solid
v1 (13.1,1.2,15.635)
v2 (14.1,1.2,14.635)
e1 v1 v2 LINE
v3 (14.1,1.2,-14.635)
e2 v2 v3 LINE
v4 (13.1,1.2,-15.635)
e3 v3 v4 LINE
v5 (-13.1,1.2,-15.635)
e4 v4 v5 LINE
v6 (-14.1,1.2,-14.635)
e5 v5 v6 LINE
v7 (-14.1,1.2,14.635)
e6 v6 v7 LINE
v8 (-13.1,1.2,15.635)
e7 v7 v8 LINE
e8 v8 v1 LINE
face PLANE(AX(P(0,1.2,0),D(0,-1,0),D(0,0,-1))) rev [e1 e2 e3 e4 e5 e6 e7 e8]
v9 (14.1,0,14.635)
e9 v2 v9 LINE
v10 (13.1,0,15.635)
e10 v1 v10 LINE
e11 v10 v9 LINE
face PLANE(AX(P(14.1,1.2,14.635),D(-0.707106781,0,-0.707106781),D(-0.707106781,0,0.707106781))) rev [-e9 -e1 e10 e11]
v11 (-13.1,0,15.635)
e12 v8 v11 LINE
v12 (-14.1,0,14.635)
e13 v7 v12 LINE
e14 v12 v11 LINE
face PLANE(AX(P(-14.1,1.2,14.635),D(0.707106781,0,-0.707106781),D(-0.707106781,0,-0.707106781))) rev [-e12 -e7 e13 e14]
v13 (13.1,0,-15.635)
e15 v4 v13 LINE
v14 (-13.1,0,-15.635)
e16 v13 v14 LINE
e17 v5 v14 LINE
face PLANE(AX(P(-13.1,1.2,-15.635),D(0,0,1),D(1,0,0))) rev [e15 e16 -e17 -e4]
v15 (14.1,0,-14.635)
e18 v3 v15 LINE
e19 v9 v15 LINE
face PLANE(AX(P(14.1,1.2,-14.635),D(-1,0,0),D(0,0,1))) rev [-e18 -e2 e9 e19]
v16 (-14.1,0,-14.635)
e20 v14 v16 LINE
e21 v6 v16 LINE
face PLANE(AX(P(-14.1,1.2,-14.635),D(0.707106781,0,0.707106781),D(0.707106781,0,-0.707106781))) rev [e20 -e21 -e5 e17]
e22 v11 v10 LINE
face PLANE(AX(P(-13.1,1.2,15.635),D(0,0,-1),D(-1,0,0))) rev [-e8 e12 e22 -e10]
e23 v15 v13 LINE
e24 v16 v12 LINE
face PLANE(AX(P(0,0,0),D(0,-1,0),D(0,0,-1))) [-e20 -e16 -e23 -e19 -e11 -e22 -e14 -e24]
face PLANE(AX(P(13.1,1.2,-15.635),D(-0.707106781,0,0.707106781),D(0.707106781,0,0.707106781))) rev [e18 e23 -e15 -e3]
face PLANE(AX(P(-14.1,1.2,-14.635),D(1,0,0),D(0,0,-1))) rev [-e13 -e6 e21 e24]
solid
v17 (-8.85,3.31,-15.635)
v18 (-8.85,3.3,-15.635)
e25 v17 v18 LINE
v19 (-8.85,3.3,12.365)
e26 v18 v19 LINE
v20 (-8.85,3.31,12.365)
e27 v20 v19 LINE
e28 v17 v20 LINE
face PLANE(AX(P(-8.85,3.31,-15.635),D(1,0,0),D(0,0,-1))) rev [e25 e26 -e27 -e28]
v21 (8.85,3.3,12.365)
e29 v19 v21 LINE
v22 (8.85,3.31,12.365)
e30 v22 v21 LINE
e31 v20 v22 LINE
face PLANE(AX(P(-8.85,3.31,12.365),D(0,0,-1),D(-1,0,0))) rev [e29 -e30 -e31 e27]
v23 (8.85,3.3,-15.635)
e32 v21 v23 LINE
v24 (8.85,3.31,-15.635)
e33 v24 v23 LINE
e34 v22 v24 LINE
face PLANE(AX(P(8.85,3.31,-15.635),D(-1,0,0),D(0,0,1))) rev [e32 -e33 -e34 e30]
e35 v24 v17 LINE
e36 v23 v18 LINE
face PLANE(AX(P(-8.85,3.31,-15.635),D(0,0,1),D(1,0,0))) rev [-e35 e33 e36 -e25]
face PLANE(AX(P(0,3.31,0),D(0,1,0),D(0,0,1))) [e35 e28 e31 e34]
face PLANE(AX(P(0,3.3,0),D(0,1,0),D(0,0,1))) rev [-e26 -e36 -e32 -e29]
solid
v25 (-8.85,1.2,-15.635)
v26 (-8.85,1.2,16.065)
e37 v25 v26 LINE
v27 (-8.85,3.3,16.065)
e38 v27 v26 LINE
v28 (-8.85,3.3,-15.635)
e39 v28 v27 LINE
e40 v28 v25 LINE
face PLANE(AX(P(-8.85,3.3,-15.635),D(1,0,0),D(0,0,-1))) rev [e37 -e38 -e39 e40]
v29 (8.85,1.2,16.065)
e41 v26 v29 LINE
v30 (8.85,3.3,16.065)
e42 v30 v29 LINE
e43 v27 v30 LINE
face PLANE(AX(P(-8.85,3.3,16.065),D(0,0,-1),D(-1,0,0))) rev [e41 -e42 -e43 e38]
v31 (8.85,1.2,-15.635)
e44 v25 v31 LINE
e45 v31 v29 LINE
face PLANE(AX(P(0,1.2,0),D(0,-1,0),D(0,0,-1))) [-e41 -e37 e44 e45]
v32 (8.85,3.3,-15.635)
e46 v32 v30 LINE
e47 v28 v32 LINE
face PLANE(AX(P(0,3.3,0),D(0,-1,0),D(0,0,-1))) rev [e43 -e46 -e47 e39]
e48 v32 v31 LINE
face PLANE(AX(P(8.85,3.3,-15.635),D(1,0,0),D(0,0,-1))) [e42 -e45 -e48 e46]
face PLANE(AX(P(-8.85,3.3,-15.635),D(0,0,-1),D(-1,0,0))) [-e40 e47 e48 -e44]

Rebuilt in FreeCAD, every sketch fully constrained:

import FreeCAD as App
import Part
import Sketcher

V = App.Vector


def add_polygon(sketch, points):
    """Adds a closed chain of lines whose ends are joined by coincident constraints."""
    first, n = sketch.GeometryCount, len(points)
    for a, b in zip(points, points[1:] + points[:1]):
        sketch.addGeometry(Part.LineSegment(App.Vector(*a, 0), App.Vector(*b, 0)), False)
    for i in range(n):
        sketch.addConstraint(Sketcher.Constraint("Coincident", first + i, 2, first + (i + 1) % n, 1))

doc = App.newDocument("Part")
params = doc.addObject("Spreadsheet::Sheet", "Params")
for row, (alias, value) in enumerate([
    ("sketch1_width", "26.2 mm"),
    ("sketch1_height", "29.27 mm"),
    ("pad1_length", "1.2 mm"),
    ("sketch2_width", "17.7 mm"),
    ("sketch2_height", "31.7 mm"),
    ("pad2_length", "2.1 mm"),
    ("sketch3_height", "28 mm"),
    ("sketch3_width", "17.7 mm"),
    ("pad3_length", "0.01 mm"),
], start=1):
    params.set(f"A{row}", alias)
    params.set(f"B{row}", "=" + value)
    params.setAlias(f"B{row}", alias)

body = doc.addObject("PartDesign::Body", "Body")

# Sketch on XZ plane
sketch1 = body.newObject("Sketcher::SketchObject", "Sketch")
sketch1.AttachmentSupport = (doc.getObject("XZ_Plane"), [""])
sketch1.MapMode = "FlatFace"
add_polygon(sketch1, [(-13.1, -15.6), (-14.1, -14.6), (-14.1, 14.6), (-13.1, 15.6), (13.1, 15.6), (14.1, 14.6), (14.1, -14.6), (13.1, -15.6)])  # lines 0-7
sketch1.addConstraint([
    Sketcher.Constraint("Vertical", 1),
    Sketcher.Constraint("Horizontal", 3),
    Sketcher.Constraint("Vertical", 5),
    Sketcher.Constraint("Horizontal", 7),
    Sketcher.Constraint("Symmetric", 0, 2, 4, 2, -1, 1),
    Sketcher.Constraint("Symmetric", 2, 2, 6, 2, -1, 1),
    Sketcher.Constraint("Perpendicular", 0, 2),
    Sketcher.Constraint("Perpendicular", 2, 4),
    Sketcher.Constraint("Perpendicular", 4, 6),
    Sketcher.Constraint("Horizontal", 1, 2, 4, 2),
    Sketcher.Constraint("Vertical", 3, 2, 6, 2),
    Sketcher.Constraint("DistanceX", 3, 1, 3, 2, 26.2),
    Sketcher.Constraint("DistanceX", 1, 2, 2, 2, 1.0),
    Sketcher.Constraint("DistanceY", 1, 1, 1, 2, 29.27),
])
sketch1.setExpression("Constraints[19]", "Params.sketch1_width")
sketch1.setExpression("Constraints[21]", "Params.sketch1_height")
pad1 = body.newObject("PartDesign::Pad", "Pad")
pad1.Profile = sketch1
pad1.setExpression("Length", "Params.pad1_length")
pad1.Reversed = True
body2 = doc.addObject("PartDesign::Body", "Body001")

# Sketch on XZ plane
sketch2 = body2.newObject("Sketcher::SketchObject", "Sketch001")
sketch2.AttachmentSupport = (doc.getObject("XZ_Plane001"), [""])
sketch2.MapMode = "FlatFace"
sketch2.AttachmentOffset = App.Placement(V(0, 0, -1.2), App.Rotation())
add_polygon(sketch2, [(-9, -16), (-9, 16), (9, 16), (9, -16)])  # lines 0-3
sketch2.addConstraint([
    Sketcher.Constraint("Vertical", 0),
    Sketcher.Constraint("Horizontal", 1),
    Sketcher.Constraint("Vertical", 2),
    Sketcher.Constraint("Horizontal", 3),
    Sketcher.Constraint("DistanceX", 1, 1, 1, 2, 17.7),
    Sketcher.Constraint("DistanceY", 0, 1, 0, 2, 31.7),
    Sketcher.Constraint("DistanceX", 0, 2, -1, 1, 8.85),
    Sketcher.Constraint("DistanceY", -1, 1, 0, 2, 16.065),
])
sketch2.setExpression("Constraints[8]", "Params.sketch2_width")
sketch2.setExpression("Constraints[9]", "Params.sketch2_height")
pad2 = body2.newObject("PartDesign::Pad", "Pad001")
pad2.Profile = sketch2
pad2.setExpression("Length", "Params.pad2_length")
pad2.Reversed = True
body3 = doc.addObject("PartDesign::Body", "Body002")

# Sketch on XZ plane
sketch3 = body3.newObject("Sketcher::SketchObject", "Sketch002")
sketch3.AttachmentSupport = (doc.getObject("XZ_Plane002"), [""])
sketch3.MapMode = "FlatFace"
sketch3.AttachmentOffset = App.Placement(V(0, 0, -3.3), App.Rotation())
add_polygon(sketch3, [(-9, -16), (-9, 12), (9, 12), (9, -16)])  # lines 0-3
sketch3.addConstraint([
    Sketcher.Constraint("Vertical", 0),
    Sketcher.Constraint("Horizontal", 1),
    Sketcher.Constraint("Vertical", 2),
    Sketcher.Constraint("Horizontal", 3),
    Sketcher.Constraint("DistanceY", 0, 1, 0, 2, 28.0),
    Sketcher.Constraint("DistanceX", 1, 1, 1, 2, 17.7),
    Sketcher.Constraint("DistanceX", 0, 2, -1, 1, 8.85),
    Sketcher.Constraint("DistanceY", -1, 1, 0, 2, 12.365),
])
sketch3.setExpression("Constraints[8]", "Params.sketch3_height")
sketch3.setExpression("Constraints[9]", "Params.sketch3_width")
pad3 = body3.newObject("PartDesign::Pad", "Pad002")
pad3.Profile = sketch3
pad3.setExpression("Length", "Params.pad3_length")
pad3.Reversed = True

doc.recompute()
